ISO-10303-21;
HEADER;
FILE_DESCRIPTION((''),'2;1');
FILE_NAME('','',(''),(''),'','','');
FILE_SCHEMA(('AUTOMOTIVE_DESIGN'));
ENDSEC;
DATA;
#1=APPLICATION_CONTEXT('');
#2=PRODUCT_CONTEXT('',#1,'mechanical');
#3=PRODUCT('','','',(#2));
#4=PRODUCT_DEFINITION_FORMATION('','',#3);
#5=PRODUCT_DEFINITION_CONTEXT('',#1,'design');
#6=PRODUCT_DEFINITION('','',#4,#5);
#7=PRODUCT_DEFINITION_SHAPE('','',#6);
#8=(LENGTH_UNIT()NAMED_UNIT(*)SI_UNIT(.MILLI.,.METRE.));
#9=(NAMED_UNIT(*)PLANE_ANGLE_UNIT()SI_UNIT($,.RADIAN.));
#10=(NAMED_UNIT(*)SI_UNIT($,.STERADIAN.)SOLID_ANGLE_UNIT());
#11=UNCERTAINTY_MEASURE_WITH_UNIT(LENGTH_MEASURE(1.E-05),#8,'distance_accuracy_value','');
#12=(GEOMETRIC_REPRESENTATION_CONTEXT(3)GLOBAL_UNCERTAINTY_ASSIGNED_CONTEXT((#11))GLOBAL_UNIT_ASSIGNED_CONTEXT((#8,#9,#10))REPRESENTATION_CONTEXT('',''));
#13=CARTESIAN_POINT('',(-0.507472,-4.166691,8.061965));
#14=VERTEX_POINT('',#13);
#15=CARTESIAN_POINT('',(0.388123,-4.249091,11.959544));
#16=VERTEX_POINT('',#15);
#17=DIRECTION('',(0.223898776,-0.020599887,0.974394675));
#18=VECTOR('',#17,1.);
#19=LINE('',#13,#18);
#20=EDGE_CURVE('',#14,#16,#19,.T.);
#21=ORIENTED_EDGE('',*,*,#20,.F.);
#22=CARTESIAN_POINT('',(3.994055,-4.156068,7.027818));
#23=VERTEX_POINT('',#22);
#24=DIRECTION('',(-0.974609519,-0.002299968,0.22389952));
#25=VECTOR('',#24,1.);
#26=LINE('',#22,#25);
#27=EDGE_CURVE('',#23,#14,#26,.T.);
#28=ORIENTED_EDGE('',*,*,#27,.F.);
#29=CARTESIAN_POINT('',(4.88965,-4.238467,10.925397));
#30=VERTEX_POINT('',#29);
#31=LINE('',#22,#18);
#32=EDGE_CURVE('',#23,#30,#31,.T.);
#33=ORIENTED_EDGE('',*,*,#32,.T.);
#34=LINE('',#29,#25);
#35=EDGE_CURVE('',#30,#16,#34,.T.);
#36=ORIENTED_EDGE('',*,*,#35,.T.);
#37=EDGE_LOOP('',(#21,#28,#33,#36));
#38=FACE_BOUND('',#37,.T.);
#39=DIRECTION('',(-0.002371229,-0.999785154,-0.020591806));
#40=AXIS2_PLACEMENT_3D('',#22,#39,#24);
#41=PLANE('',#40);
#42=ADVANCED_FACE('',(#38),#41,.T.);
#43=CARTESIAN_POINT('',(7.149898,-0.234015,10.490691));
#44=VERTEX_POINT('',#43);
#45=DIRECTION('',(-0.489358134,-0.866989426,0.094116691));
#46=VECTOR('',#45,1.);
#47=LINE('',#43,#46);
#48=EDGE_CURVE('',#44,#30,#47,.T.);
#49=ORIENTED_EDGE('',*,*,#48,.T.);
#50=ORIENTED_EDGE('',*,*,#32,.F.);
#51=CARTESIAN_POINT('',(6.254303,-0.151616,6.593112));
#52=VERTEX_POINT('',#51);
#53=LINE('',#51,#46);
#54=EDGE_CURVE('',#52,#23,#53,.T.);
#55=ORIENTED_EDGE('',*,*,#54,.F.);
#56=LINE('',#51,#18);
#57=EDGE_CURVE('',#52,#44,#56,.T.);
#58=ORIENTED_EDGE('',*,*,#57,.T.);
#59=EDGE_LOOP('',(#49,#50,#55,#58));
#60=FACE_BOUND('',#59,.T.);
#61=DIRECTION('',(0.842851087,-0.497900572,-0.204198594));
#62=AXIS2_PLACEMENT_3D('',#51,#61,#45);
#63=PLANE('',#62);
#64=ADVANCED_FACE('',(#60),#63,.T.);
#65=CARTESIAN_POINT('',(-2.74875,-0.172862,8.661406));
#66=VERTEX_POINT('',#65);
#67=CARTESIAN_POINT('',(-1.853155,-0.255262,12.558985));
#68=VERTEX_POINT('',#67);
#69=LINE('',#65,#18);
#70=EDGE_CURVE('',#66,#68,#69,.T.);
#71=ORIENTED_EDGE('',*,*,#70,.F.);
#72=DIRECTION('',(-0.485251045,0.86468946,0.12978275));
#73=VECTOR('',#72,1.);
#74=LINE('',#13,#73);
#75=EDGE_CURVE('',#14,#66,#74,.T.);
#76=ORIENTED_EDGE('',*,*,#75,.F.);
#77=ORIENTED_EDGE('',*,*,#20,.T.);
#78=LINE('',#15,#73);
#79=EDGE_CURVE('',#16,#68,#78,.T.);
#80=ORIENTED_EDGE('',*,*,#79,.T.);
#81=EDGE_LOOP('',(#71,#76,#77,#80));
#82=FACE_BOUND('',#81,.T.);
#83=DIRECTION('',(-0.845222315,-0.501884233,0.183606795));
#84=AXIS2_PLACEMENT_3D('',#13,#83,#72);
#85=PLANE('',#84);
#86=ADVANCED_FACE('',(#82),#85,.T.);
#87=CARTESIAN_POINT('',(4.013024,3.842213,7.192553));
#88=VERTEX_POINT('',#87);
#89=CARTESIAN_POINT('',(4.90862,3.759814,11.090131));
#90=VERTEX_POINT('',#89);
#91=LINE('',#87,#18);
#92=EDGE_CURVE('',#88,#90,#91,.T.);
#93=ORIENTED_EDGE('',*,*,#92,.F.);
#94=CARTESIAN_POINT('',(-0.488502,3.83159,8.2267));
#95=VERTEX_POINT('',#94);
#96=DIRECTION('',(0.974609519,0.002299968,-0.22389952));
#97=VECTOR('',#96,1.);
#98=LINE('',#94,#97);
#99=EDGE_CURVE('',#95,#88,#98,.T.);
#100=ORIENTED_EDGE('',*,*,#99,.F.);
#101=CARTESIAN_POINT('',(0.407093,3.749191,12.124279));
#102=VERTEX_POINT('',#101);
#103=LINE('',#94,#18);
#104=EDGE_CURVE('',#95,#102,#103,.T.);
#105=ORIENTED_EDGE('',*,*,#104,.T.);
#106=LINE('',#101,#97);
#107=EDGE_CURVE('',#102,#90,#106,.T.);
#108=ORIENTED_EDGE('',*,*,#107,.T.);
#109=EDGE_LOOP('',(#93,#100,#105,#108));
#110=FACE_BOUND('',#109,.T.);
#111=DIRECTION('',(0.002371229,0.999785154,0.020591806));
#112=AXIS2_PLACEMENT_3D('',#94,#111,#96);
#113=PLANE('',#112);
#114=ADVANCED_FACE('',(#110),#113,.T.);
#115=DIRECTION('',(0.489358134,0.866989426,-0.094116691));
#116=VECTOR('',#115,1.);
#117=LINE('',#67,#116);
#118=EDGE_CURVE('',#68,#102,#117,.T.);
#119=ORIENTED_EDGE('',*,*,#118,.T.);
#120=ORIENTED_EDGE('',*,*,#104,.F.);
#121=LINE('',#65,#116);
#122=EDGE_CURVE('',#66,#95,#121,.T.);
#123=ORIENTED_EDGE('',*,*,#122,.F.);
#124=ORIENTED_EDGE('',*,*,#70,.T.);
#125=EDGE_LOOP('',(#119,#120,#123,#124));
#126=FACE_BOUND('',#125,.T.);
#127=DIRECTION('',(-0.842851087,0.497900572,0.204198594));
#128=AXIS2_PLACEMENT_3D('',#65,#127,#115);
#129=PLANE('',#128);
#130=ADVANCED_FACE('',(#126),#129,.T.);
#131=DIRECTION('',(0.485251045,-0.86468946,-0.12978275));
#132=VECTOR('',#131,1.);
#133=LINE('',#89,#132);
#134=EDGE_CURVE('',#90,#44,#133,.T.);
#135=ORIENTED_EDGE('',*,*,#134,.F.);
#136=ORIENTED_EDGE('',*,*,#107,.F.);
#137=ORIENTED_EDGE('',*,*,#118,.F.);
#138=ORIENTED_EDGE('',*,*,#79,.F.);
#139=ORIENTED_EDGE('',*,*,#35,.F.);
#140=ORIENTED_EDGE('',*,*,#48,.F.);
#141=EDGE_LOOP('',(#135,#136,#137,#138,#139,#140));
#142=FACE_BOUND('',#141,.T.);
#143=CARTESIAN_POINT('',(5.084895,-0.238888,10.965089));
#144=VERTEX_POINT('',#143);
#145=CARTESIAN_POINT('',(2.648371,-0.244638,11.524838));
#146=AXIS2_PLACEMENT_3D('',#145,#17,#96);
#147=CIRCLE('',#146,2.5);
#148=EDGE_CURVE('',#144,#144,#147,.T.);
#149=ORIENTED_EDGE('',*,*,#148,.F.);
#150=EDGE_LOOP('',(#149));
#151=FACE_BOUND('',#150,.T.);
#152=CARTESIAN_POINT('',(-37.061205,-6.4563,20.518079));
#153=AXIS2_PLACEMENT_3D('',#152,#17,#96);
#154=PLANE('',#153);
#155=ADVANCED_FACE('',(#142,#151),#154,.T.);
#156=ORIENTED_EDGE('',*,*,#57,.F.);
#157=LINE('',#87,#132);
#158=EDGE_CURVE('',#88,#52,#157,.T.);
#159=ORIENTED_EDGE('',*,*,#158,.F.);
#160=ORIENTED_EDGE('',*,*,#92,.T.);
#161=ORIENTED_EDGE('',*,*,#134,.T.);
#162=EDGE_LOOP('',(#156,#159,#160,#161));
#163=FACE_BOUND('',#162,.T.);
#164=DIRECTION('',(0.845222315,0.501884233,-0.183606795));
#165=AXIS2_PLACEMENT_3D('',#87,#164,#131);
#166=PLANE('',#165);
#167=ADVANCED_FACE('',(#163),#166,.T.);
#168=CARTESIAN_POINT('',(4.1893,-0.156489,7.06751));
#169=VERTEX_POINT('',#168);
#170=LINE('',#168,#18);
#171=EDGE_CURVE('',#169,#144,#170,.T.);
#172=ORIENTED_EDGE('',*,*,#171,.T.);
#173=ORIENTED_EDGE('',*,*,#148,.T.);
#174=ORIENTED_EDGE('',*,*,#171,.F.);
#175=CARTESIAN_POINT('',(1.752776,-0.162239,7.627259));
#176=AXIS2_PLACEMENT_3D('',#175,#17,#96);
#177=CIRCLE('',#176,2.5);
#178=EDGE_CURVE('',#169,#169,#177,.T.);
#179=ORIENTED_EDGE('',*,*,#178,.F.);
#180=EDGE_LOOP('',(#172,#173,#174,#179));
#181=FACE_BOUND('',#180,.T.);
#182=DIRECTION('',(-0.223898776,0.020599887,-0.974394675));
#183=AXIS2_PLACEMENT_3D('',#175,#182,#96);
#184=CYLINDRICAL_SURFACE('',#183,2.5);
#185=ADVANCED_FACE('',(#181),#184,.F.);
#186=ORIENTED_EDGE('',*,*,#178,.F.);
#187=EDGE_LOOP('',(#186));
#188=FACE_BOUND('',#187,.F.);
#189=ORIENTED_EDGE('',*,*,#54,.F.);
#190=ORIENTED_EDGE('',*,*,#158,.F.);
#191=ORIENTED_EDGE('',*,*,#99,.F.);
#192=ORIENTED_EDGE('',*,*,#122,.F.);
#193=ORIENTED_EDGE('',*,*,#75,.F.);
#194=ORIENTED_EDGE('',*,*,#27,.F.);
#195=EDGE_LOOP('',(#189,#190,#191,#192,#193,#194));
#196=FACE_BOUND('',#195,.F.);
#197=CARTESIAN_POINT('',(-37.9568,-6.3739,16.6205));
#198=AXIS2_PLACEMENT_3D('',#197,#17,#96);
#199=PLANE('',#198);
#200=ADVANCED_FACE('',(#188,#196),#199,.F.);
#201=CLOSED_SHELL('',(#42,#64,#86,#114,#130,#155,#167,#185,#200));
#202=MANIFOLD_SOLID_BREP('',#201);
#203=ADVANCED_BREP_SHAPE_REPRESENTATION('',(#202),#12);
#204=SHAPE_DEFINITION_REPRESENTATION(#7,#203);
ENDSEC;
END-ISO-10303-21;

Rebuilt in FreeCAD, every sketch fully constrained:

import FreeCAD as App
import Part
import Sketcher
from FreeCAD import Vector
Q = App.Units.Quantity


def add_polygon(sketch, points):
    """Adds a closed chain of lines whose ends are joined by coincident constraints."""
    first, n = sketch.GeometryCount, len(points)
    for a, b in zip(points, points[1:] + points[:1]):
        sketch.addGeometry(Part.LineSegment(App.Vector(*a, 0), App.Vector(*b, 0)), False)
    for i in range(n):
        sketch.addConstraint(Sketcher.Constraint("Coincident", first + i, 2, first + (i + 1) % n, 1))

doc = App.newDocument("Part")
body = doc.addObject("PartDesign::Body", "Body")

# Sketch on an angled plane
sketch1 = body.newObject("Sketcher::SketchObject", "Sketch")
sketch1.Placement = App.Placement(Vector(-37.9568, -6.3739, 16.6205), App.Rotation(Vector(0.974609519, 0.002299968, -0.22389952), Vector(0.002371228, 0.999785154, 0.020591806), Vector(0.223898776, -0.020599887, 0.974394675), "ZXY"))
add_polygon(sketch1, [(43, 2.1), (45.3, 6.1), (43, 10.1), (38.4, 10.1), (36.1, 6.1), (38.4, 2.1)])  # lines 0-5
sketch1.addGeometry(Part.Circle(Vector(40.7, 6.1, 0), Vector(0, 0, 1), 2.5), False)  # 6
sketch1.addConstraint([
    Sketcher.Constraint("Horizontal", 2),
    Sketcher.Constraint("Horizontal", 5),
    Sketcher.Constraint("Parallel", 0, 3),
    Sketcher.Constraint("Parallel", 1, 4),
    Sketcher.Constraint("Horizontal", 6, 3, 0, 2),
    Sketcher.Constraint("Horizontal", 0, 2, 3, 2),
    Sketcher.Constraint("Vertical", 2, 2, 4, 2),
    Sketcher.Constraint("Vertical", 1, 2, 5, 2),
    Sketcher.Constraint("Diameter", 6, Q("5 mm")),
    Sketcher.Constraint("DistanceY", 4, 2, 2, 2, Q("8 mm")),
    Sketcher.Constraint("Angle", 0, Q("60 deg")),
    Sketcher.Constraint("DistanceX", 2, 2, 2, 1, Q("4.6188 mm")),
    Sketcher.Constraint("DistanceX", -1, 1, 0, 2, Q("45.348 mm")),
    Sketcher.Constraint("DistanceX", -1, 1, 6, 3, Q("40.7292 mm")),
    Sketcher.Constraint("DistanceY", -1, 1, 6, 3, Q("6.1193 mm")),
])
pad1 = body.newObject("PartDesign::Pad", "Pad")
pad1.Profile = sketch1
pad1.Length = 4

doc.recompute()
